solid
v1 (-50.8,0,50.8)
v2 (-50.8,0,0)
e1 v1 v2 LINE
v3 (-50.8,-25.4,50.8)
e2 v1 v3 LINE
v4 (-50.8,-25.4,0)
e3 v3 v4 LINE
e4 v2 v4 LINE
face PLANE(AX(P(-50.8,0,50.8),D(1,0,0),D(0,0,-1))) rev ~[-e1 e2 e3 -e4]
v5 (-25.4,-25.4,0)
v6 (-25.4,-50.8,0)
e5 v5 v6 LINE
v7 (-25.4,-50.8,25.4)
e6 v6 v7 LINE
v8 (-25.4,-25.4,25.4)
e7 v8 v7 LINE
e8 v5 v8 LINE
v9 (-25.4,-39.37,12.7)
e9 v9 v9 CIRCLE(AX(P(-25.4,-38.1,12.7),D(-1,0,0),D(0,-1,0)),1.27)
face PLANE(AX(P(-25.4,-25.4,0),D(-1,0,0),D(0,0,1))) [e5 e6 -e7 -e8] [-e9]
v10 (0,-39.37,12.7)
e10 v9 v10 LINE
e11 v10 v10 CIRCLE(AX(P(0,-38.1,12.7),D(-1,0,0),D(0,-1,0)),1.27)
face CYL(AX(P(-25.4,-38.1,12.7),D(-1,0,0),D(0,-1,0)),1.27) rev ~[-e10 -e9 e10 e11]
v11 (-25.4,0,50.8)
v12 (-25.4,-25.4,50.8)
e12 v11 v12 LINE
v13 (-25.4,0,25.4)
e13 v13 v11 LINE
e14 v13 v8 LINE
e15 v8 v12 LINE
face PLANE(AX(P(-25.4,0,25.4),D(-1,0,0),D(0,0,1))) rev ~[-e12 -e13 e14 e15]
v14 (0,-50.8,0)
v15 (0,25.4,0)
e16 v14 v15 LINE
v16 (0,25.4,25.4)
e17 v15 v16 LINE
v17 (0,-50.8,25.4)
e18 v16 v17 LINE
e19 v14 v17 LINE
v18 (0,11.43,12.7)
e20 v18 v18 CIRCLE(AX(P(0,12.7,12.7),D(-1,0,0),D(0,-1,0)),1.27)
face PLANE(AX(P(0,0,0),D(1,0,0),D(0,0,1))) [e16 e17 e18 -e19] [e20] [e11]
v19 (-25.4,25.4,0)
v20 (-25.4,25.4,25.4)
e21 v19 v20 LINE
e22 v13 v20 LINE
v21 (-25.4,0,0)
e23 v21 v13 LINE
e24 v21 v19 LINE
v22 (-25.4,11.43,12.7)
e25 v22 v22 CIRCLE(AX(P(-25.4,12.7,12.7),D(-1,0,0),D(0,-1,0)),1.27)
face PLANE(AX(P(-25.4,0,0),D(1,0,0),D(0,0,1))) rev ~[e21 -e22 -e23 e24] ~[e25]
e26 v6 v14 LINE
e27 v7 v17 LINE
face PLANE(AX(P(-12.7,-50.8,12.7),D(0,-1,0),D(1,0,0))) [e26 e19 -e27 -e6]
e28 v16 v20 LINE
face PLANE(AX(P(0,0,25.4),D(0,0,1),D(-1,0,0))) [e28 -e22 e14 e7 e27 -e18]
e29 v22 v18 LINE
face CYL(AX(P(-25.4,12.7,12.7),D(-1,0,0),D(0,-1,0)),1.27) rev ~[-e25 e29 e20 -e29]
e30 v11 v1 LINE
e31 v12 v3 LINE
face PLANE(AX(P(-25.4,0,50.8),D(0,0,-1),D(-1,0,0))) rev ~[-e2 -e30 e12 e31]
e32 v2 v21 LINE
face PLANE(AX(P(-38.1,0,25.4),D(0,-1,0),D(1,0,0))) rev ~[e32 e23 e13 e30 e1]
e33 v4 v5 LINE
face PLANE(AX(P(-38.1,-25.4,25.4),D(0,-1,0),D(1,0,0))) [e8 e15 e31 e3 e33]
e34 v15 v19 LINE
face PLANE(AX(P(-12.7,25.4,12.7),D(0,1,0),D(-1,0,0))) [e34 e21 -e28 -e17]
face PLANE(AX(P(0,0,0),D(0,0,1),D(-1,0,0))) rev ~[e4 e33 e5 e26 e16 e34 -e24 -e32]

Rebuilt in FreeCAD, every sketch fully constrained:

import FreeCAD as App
import Part
import Sketcher
Q = App.Units.Quantity


def add_polygon(sketch, points):
    """Adds a closed chain of lines whose ends are joined by coincident constraints."""
    first, n = sketch.GeometryCount, len(points)
    for a, b in zip(points, points[1:] + points[:1]):
        sketch.addGeometry(Part.LineSegment(App.Vector(*a, 0), App.Vector(*b, 0)), False)
    for i in range(n):
        sketch.addConstraint(Sketcher.Constraint("Coincident", first + i, 2, first + (i + 1) % n, 1))

doc = App.newDocument("Part")
body = doc.addObject("PartDesign::Body", "Body")

# Sketch on XZ plane
sketch1 = doc.addObject("Sketcher::SketchObject", "Sketch")
body.addObject(sketch1)
sketch1.AttachmentSupport = (doc.XZ_Plane, [""])
sketch1.MapMode = "FlatFace"
add_polygon(sketch1, [(-51, 0), (0, 0), (0, 25), (-25, 25), (-25, 51), (-51, 51)])  # lines 0-5
sketch1.addConstraint([
    Sketcher.Constraint("Horizontal", 0),
    Sketcher.Constraint("Vertical", 1),
    Sketcher.Constraint("Horizontal", 2),
    Sketcher.Constraint("Vertical", 3),
    Sketcher.Constraint("Horizontal", 4),
    Sketcher.Constraint("Vertical", 5),
    Sketcher.Constraint("Coincident", 0, 2, -1, 1),
    Sketcher.Constraint("Equal", 2, 4),
    Sketcher.Constraint("Equal", 4, 1),
    Sketcher.Constraint("Equal", 1, 3),
    Sketcher.Constraint("DistanceX", 0, 1, 0, 2, Q("2 in")),
])
pad1 = doc.addObject("PartDesign::Pad", "Pad")
body.addObject(pad1)
pad1.Profile = sketch1
pad1.Length = Q("1 in")

# Sketch on XZ plane
sketch2 = doc.addObject("Sketcher::SketchObject", "Sketch001")
body.addObject(sketch2)
sketch2.AttachmentSupport = (doc.XZ_Plane, [""])
sketch2.MapMode = "FlatFace"
sketch2.AttachmentOffset = App.Placement(App.Vector(0, 0, 1 * 25.4), App.Rotation())
add_polygon(sketch2, [(-25, 25), (-25, 0), (0, 0), (0, 25)])  # lines 0-3
sketch2.addConstraint([
    Sketcher.Constraint("Vertical", 0),
    Sketcher.Constraint("Horizontal", 1),
    Sketcher.Constraint("Vertical", 2),
    Sketcher.Constraint("Horizontal", 3),
    Sketcher.Constraint("Coincident", 1, 2, -1, 1),
    Sketcher.Constraint("Equal", 3, 0),
    Sketcher.Constraint("DistanceX", 1, 1, 1, 2, Q("1 in")),
])
pad2 = doc.addObject("PartDesign::Pad", "Pad001")
body.addObject(pad2)
pad2.Profile = sketch2
pad2.Length = Q("1 in")

# Sketch on XZ plane
sketch3 = doc.addObject("Sketcher::SketchObject", "Sketch002")
body.addObject(sketch3)
sketch3.AttachmentSupport = (doc.XZ_Plane, [""])
sketch3.MapMode = "FlatFace"
add_polygon(sketch3, [(0, 25), (0, 0), (-25, 0), (-25, 25)])  # lines 0-3
sketch3.addConstraint([
    Sketcher.Constraint("Vertical", 0),
    Sketcher.Constraint("Horizontal", 1),
    Sketcher.Constraint("Vertical", 2),
    Sketcher.Constraint("Horizontal", 3),
    Sketcher.Constraint("Coincident", 0, 2, -1, 1),
    Sketcher.Constraint("Equal", 3, 0),
    Sketcher.Constraint("DistanceX", 1, 2, 1, 1, Q("1 in")),
])
pad3 = doc.addObject("PartDesign::Pad", "Pad002")
body.addObject(pad3)
pad3.Profile = sketch3
pad3.Length = Q("1 in")
pad3.Reversed = True

# Sketch on YZ plane
sketch4 = doc.addObject("Sketcher::SketchObject", "Sketch003")
body.addObject(sketch4)
sketch4.AttachmentSupport = (doc.YZ_Plane, [""])
sketch4.MapMode = "FlatFace"
sketch4.AttachmentOffset = App.Placement(App.Vector(0, 0, -1 * 25.4), App.Rotation())
sketch4.addGeometry([
    Part.Circle(App.Vector(-38.1, 12.7, 0), App.Vector(0, 0, 1), 1.3),
    Part.Circle(App.Vector(12.7, 12.7, 0), App.Vector(0, 0, 1), 1.3),
], False)
sketch4.addConstraint([
    Sketcher.Constraint("Equal", 0, 1),
    Sketcher.Constraint("Horizontal", 0, 3, 1, 3),
    Sketcher.Constraint("Diameter", 0, Q("0.1 in")),
    Sketcher.Constraint("DistanceX", 0, 3, 1, 3, Q("2 in")),
    Sketcher.Constraint("DistanceX", 0, 3, -1, 1, Q("1.5 in")),
    Sketcher.Constraint("DistanceY", -1, 1, 0, 3, Q("0.5 in")),
])
pocket1 = doc.addObject("PartDesign::Pocket", "Pocket")
body.addObject(pocket1)
pocket1.Profile = sketch4
pocket1.Length = Q("1 in")
pocket1.Reversed = True

doc.recompute()
